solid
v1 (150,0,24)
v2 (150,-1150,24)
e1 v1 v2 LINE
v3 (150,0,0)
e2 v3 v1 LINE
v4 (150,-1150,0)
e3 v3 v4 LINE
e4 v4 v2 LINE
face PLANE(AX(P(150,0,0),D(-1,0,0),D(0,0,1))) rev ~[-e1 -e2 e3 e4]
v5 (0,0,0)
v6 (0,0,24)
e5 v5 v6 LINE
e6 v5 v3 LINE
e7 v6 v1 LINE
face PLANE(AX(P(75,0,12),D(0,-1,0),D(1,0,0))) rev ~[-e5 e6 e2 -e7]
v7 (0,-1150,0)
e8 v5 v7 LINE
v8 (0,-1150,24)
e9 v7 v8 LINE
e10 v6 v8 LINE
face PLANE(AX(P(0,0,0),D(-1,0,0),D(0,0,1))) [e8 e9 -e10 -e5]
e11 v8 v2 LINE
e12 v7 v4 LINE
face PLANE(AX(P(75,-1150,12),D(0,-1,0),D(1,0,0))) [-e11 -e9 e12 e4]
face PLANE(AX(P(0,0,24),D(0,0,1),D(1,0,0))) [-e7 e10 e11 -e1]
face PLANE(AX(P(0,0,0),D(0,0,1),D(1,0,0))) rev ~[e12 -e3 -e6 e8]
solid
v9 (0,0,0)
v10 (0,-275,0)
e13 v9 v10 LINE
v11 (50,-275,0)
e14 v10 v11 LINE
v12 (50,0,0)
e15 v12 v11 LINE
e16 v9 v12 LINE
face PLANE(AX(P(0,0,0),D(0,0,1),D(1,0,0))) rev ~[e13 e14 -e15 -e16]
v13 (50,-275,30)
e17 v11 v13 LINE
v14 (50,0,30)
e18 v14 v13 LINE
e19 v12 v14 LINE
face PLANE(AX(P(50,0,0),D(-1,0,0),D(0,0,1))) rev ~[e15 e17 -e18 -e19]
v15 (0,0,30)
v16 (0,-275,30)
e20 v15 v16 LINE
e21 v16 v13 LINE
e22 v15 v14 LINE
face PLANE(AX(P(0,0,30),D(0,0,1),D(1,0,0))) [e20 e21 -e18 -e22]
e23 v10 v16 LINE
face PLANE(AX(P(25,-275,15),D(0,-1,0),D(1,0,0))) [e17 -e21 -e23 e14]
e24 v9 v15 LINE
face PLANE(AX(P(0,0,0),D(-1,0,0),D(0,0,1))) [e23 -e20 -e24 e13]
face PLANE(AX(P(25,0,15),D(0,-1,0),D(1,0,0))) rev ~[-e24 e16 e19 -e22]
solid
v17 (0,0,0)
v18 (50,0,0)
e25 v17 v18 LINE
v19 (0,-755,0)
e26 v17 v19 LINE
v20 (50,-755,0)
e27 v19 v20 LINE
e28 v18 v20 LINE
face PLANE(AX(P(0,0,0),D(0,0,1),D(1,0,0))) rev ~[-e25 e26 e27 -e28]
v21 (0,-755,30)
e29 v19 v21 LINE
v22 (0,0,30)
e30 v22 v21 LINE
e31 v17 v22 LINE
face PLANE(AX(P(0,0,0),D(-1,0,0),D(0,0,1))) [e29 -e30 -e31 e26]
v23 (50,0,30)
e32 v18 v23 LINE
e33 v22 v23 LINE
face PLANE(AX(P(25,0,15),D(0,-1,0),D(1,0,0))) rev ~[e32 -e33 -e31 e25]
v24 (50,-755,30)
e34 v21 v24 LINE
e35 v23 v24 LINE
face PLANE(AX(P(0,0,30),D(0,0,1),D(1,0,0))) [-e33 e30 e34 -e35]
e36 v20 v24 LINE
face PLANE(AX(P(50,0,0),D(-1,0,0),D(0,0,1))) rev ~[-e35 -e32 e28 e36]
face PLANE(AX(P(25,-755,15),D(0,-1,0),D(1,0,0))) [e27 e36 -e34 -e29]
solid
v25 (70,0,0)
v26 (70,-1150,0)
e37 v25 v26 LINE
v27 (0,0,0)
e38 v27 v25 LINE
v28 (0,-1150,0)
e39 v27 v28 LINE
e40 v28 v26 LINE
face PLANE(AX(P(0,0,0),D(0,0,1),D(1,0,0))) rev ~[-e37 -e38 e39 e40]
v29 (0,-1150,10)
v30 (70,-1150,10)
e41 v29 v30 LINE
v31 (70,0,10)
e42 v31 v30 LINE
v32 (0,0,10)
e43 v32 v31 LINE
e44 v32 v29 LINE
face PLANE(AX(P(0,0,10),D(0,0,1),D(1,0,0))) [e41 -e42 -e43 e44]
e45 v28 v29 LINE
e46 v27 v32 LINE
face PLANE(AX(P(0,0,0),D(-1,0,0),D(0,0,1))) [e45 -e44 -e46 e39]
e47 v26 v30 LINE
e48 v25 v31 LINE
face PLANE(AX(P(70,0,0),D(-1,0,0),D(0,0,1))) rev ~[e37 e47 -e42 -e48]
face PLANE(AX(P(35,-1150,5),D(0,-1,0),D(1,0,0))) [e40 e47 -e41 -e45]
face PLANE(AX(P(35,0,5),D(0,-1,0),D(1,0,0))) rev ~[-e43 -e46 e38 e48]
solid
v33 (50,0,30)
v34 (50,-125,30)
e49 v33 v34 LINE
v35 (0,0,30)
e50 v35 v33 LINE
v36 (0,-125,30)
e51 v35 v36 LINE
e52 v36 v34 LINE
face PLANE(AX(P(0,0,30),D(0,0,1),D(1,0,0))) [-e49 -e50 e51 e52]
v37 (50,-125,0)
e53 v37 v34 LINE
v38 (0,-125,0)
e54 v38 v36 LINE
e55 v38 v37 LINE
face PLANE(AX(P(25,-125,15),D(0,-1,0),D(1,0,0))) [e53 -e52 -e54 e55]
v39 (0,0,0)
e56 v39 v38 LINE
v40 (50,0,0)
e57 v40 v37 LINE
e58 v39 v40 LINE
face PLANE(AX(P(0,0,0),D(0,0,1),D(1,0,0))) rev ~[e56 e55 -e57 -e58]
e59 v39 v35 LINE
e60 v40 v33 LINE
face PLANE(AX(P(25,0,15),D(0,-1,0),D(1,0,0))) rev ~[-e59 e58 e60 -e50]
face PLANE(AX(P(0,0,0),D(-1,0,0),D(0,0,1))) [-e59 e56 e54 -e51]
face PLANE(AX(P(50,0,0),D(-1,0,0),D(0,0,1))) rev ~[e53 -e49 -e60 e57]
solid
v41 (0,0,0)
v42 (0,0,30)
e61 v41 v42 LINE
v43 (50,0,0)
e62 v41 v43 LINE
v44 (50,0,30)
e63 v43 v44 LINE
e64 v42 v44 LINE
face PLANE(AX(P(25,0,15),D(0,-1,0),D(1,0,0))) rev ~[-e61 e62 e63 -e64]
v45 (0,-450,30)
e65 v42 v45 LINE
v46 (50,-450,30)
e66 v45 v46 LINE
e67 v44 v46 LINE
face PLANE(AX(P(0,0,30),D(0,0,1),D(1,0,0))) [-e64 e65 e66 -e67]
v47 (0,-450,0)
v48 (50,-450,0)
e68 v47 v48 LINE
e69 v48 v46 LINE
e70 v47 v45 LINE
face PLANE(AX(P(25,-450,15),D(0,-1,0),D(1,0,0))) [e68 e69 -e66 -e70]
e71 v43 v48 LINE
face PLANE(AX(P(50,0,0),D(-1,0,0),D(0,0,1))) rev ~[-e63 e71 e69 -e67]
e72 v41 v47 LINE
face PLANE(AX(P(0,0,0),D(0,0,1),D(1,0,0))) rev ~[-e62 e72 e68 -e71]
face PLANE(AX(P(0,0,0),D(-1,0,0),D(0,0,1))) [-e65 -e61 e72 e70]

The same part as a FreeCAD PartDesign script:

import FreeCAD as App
import Part
import Sketcher
from FreeCAD import Vector
Q = App.Units.Quantity

doc = App.newDocument("Part")
body = doc.addObject("PartDesign::Body", "Body")

sketch1 = body.newObject("Sketcher::SketchObject", "Sketch")
sketch1.AttachmentSupport = (doc.getObject("XZ_Plane"), [""])
sketch1.MapMode = "FlatFace"
sketch1.addGeometry(Part.LineSegment(Vector(0, 24, 0), Vector(0, 0, 0)), False)
sketch1.addGeometry(Part.LineSegment(Vector(0, 0, 0), Vector(150, 0, 0)), False)
sketch1.addGeometry(Part.LineSegment(Vector(150, 0, 0), Vector(150, 24, 0)), False)
sketch1.addGeometry(Part.LineSegment(Vector(150, 24, 0), Vector(0, 24, 0)), False)
sketch1.addConstraint(Sketcher.Constraint("Coincident", 0, 2, 1, 1))
sketch1.addConstraint(Sketcher.Constraint("Coincident", 1, 2, 2, 1))
sketch1.addConstraint(Sketcher.Constraint("Coincident", 2, 2, 3, 1))
sketch1.addConstraint(Sketcher.Constraint("Coincident", 3, 2, 0, 1))
sketch1.addConstraint(Sketcher.Constraint("Vertical", 0))
sketch1.addConstraint(Sketcher.Constraint("Horizontal", 1))
sketch1.addConstraint(Sketcher.Constraint("Vertical", 2))
sketch1.addConstraint(Sketcher.Constraint("Horizontal", 3))
sketch1.addConstraint(Sketcher.Constraint("Coincident", 0, 2, -1, 1))
sketch1.addConstraint(Sketcher.Constraint("DistanceX", 1, 1, 1, 2, Q("150 mm")))
sketch1.addConstraint(Sketcher.Constraint("DistanceY", 0, 2, 0, 1, Q("24 mm")))
pad1 = body.newObject("PartDesign::Pad", "Pad")
pad1.Profile = sketch1
pad1.Length = 1150
body2 = doc.addObject("PartDesign::Body", "Body001")

sketch2 = body2.newObject("Sketcher::SketchObject", "Sketch001")
sketch2.AttachmentSupport = (doc.getObject("XZ_Plane001"), [""])
sketch2.MapMode = "FlatFace"
sketch2.addGeometry(Part.LineSegment(Vector(0, 30, 0), Vector(0, 0, 0)), False)
sketch2.addGeometry(Part.LineSegment(Vector(0, 0, 0), Vector(50, 0, 0)), False)
sketch2.addGeometry(Part.LineSegment(Vector(50, 0, 0), Vector(50, 30, 0)), False)
sketch2.addGeometry(Part.LineSegment(Vector(50, 30, 0), Vector(0, 30, 0)), False)
sketch2.addConstraint(Sketcher.Constraint("Coincident", 0, 2, 1, 1))
sketch2.addConstraint(Sketcher.Constraint("Coincident", 1, 2, 2, 1))
sketch2.addConstraint(Sketcher.Constraint("Coincident", 2, 2, 3, 1))
sketch2.addConstraint(Sketcher.Constraint("Coincident", 3, 2, 0, 1))
sketch2.addConstraint(Sketcher.Constraint("Vertical", 0))
sketch2.addConstraint(Sketcher.Constraint("Horizontal", 1))
sketch2.addConstraint(Sketcher.Constraint("Vertical", 2))
sketch2.addConstraint(Sketcher.Constraint("Horizontal", 3))
sketch2.addConstraint(Sketcher.Constraint("Coincident", 0, 2, -1, 1))
sketch2.addConstraint(Sketcher.Constraint("DistanceX", 1, 1, 1, 2, Q("50 mm")))
sketch2.addConstraint(Sketcher.Constraint("DistanceY", 0, 2, 0, 1, Q("30 mm")))
pad2 = body2.newObject("PartDesign::Pad", "Pad001")
pad2.Profile = sketch2
pad2.Length = 450
body3 = doc.addObject("PartDesign::Body", "Body002")

sketch3 = body3.newObject("Sketcher::SketchObject", "Sketch002")
sketch3.AttachmentSupport = (doc.getObject("XZ_Plane002"), [""])
sketch3.MapMode = "FlatFace"
sketch3.addGeometry(Part.LineSegment(Vector(0, 30, 0), Vector(0, 0, 0)), False)
sketch3.addGeometry(Part.LineSegment(Vector(0, 0, 0), Vector(50, 0, 0)), False)
sketch3.addGeometry(Part.LineSegment(Vector(50, 0, 0), Vector(50, 30, 0)), False)
sketch3.addGeometry(Part.LineSegment(Vector(50, 30, 0), Vector(0, 30, 0)), False)
sketch3.addConstraint(Sketcher.Constraint("Coincident", 0, 2, 1, 1))
sketch3.addConstraint(Sketcher.Constraint("Coincident", 1, 2, 2, 1))
sketch3.addConstraint(Sketcher.Constraint("Coincident", 2, 2, 3, 1))
sketch3.addConstraint(Sketcher.Constraint("Coincident", 3, 2, 0, 1))
sketch3.addConstraint(Sketcher.Constraint("Vertical", 0))
sketch3.addConstraint(Sketcher.Constraint("Horizontal", 1))
sketch3.addConstraint(Sketcher.Constraint("Vertical", 2))
sketch3.addConstraint(Sketcher.Constraint("Horizontal", 3))
sketch3.addConstraint(Sketcher.Constraint("Coincident", 0, 2, -1, 1))
sketch3.addConstraint(Sketcher.Constraint("DistanceX", 1, 1, 1, 2, Q("50 mm")))
sketch3.addConstraint(Sketcher.Constraint("DistanceY", 0, 2, 0, 1, Q("30 mm")))
pad3 = body3.newObject("PartDesign::Pad", "Pad002")
pad3.Profile = sketch3
pad3.Length = 755
body4 = doc.addObject("PartDesign::Body", "Body003")

sketch4 = body4.newObject("Sketcher::SketchObject", "Sketch003")
sketch4.AttachmentSupport = (doc.getObject("XZ_Plane003"), [""])
sketch4.MapMode = "FlatFace"
sketch4.addGeometry(Part.LineSegment(Vector(0, 30, 0), Vector(0, 0, 0)), False)
sketch4.addGeometry(Part.LineSegment(Vector(0, 0, 0), Vector(50, 0, 0)), False)
sketch4.addGeometry(Part.LineSegment(Vector(50, 0, 0), Vector(50, 30, 0)), False)
sketch4.addGeometry(Part.LineSegment(Vector(50, 30, 0), Vector(0, 30, 0)), False)
sketch4.addConstraint(Sketcher.Constraint("Coincident", 0, 2, 1, 1))
sketch4.addConstraint(Sketcher.Constraint("Coincident", 1, 2, 2, 1))
sketch4.addConstraint(Sketcher.Constraint("Coincident", 2, 2, 3, 1))
sketch4.addConstraint(Sketcher.Constraint("Coincident", 3, 2, 0, 1))
sketch4.addConstraint(Sketcher.Constraint("Vertical", 0))
sketch4.addConstraint(Sketcher.Constraint("Horizontal", 1))
sketch4.addConstraint(Sketcher.Constraint("Vertical", 2))
sketch4.addConstraint(Sketcher.Constraint("Horizontal", 3))
sketch4.addConstraint(Sketcher.Constraint("Coincident", 0, 2, -1, 1))
sketch4.addConstraint(Sketcher.Constraint("DistanceX", 1, 1, 1, 2, Q("50 mm")))
sketch4.addConstraint(Sketcher.Constraint("DistanceY", 0, 2, 0, 1, Q("30 mm")))
pad4 = body4.newObject("PartDesign::Pad", "Pad003")
pad4.Profile = sketch4
pad4.Length = 275
body5 = doc.addObject("PartDesign::Body", "Body004")

sketch5 = body5.newObject("Sketcher::SketchObject", "Sketch004")
sketch5.AttachmentSupport = (doc.getObject("XZ_Plane004"), [""])
sketch5.MapMode = "FlatFace"
sketch5.addGeometry(Part.LineSegment(Vector(0, 30, 0), Vector(0, 0, 0)), False)
sketch5.addGeometry(Part.LineSegment(Vector(0, 0, 0), Vector(50, 0, 0)), False)
sketch5.addGeometry(Part.LineSegment(Vector(50, 0, 0), Vector(50, 30, 0)), False)
sketch5.addGeometry(Part.LineSegment(Vector(50, 30, 0), Vector(0, 30, 0)), False)
sketch5.addConstraint(Sketcher.Constraint("Coincident", 0, 2, 1, 1))
sketch5.addConstraint(Sketcher.Constraint("Coincident", 1, 2, 2, 1))
sketch5.addConstraint(Sketcher.Constraint("Coincident", 2, 2, 3, 1))
sketch5.addConstraint(Sketcher.Constraint("Coincident", 3, 2, 0, 1))
sketch5.addConstraint(Sketcher.Constraint("Vertical", 0))
sketch5.addConstraint(Sketcher.Constraint("Horizontal", 1))
sketch5.addConstraint(Sketcher.Constraint("Vertical", 2))
sketch5.addConstraint(Sketcher.Constraint("Horizontal", 3))
sketch5.addConstraint(Sketcher.Constraint("Coincident", 0, 2, -1, 1))
sketch5.addConstraint(Sketcher.Constraint("DistanceX", 1, 1, 1, 2, Q("50 mm")))
sketch5.addConstraint(Sketcher.Constraint("DistanceY", 0, 2, 0, 1, Q("30 mm")))
pad5 = body5.newObject("PartDesign::Pad", "Pad004")
pad5.Profile = sketch5
pad5.Length = 125
body6 = doc.addObject("PartDesign::Body", "Body005")

sketch6 = body6.newObject("Sketcher::SketchObject", "Sketch005")
sketch6.AttachmentSupport = (doc.getObject("XZ_Plane005"), [""])
sketch6.MapMode = "FlatFace"
sketch6.addGeometry(Part.LineSegment(Vector(0, 10, 0), Vector(0, 0, 0)), False)
sketch6.addGeometry(Part.LineSegment(Vector(0, 0, 0), Vector(70, 0, 0)), False)
sketch6.addGeometry(Part.LineSegment(Vector(70, 0, 0), Vector(70, 10, 0)), False)
sketch6.addGeometry(Part.LineSegment(Vector(70, 10, 0), Vector(0, 10, 0)), False)
sketch6.addConstraint(Sketcher.Constraint("Coincident", 0, 2, 1, 1))
sketch6.addConstraint(Sketcher.Constraint("Coincident", 1, 2, 2, 1))
sketch6.addConstraint(Sketcher.Constraint("Coincident", 2, 2, 3, 1))
sketch6.addConstraint(Sketcher.Constraint("Coincident", 3, 2, 0, 1))
sketch6.addConstraint(Sketcher.Constraint("Vertical", 0))
sketch6.addConstraint(Sketcher.Constraint("Horizontal", 1))
sketch6.addConstraint(Sketcher.Constraint("Vertical", 2))
sketch6.addConstraint(Sketcher.Constraint("Horizontal", 3))
sketch6.addConstraint(Sketcher.Constraint("Coincident", 0, 2, -1, 1))
sketch6.addConstraint(Sketcher.Constraint("DistanceX", 1, 1, 1, 2, Q("70 mm")))
sketch6.addConstraint(Sketcher.Constraint("DistanceY", 0, 2, 0, 1, Q("10 mm")))
pad6 = body6.newObject("PartDesign::Pad", "Pad005")
pad6.Profile = sketch6
pad6.Length = 1150

doc.recompute()
